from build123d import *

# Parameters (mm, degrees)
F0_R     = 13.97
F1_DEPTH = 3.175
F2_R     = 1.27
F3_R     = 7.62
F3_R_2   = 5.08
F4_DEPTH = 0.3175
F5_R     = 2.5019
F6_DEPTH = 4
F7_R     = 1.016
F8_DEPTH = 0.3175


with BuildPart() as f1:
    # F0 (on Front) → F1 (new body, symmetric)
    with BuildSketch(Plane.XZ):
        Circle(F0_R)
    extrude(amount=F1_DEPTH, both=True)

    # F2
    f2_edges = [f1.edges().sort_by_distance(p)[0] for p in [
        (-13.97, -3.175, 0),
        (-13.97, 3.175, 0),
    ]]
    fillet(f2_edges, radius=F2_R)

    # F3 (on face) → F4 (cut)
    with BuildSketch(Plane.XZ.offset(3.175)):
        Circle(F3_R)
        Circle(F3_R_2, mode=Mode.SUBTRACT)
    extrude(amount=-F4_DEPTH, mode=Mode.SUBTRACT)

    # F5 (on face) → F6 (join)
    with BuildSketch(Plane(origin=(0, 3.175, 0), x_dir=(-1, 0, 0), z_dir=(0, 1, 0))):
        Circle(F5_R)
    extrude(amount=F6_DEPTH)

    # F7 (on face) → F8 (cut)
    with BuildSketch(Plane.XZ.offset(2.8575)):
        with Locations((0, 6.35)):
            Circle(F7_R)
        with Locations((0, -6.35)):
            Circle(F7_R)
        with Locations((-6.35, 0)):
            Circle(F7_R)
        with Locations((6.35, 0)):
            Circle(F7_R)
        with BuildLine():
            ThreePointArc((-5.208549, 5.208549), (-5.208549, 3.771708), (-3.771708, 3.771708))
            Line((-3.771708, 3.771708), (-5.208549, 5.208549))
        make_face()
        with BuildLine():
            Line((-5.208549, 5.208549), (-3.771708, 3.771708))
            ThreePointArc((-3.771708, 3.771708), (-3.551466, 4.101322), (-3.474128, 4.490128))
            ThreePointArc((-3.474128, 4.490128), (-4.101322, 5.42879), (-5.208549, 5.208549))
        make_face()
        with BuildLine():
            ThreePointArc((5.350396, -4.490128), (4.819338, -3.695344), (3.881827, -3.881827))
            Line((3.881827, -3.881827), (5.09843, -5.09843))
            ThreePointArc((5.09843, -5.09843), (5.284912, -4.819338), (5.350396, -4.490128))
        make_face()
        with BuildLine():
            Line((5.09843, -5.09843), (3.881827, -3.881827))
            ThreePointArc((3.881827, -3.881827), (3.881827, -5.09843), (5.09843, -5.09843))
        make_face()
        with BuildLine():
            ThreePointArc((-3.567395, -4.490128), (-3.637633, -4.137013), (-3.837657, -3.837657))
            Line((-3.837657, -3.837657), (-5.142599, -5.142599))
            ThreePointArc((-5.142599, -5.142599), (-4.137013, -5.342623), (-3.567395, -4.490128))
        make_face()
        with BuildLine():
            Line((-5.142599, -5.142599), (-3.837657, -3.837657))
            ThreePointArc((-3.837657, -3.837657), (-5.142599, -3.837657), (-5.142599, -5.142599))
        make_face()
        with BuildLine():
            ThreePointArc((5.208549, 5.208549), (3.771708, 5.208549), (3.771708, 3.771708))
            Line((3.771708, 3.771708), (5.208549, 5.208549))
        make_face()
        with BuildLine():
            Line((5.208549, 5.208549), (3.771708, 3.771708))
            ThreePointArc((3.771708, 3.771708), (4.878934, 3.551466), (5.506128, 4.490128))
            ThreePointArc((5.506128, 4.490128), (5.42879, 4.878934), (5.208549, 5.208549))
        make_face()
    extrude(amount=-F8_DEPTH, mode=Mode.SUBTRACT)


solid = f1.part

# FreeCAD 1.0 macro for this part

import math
import FreeCAD as App
import Part
import Sketcher
Q = App.Units.Quantity


def edges_at(feature, points):
    """Names of the edges that pass closest to the given points."""
    edges = feature.Shape.Edges
    near = lambda p: min(range(len(edges)), key=lambda i: edges[i].distToShape(Part.Vertex(*p))[0])
    return sorted({f"Edge{near(p) + 1}" for p in points})

doc = App.newDocument("Part")
params = doc.addObject("Spreadsheet::Sheet", "Params")
for row, (alias, value) in enumerate([
    ("sketch1_diameter", "1.1 in"),
    ("pad1_length", "0.25 in"),
    ("fillet_radius", "0.05 in"),
    ("sketch2_diameter", "0.6 in"),
    ("sketch2_diameter2", "0.4 in"),
    ("pocket1_length", "0.0125 in"),
    ("sketch3_diameter", "0.197 in"),
    ("pad2_length", "4 mm"),
    ("sketch4_diameter", "0.08 in"),
    ("pocket2_length", "0.0125 in"),
], start=1):
    params.set(f"A{row}", alias)
    params.set(f"B{row}", "=" + value)
    params.setAlias(f"B{row}", alias)

body = doc.addObject("PartDesign::Body", "Body")

# Sketch on XZ plane
sketch1 = body.newObject("Sketcher::SketchObject", "Sketch")
sketch1.AttachmentSupport = (doc.getObject("XZ_Plane"), [""])
sketch1.MapMode = "FlatFace"
sketch1.addGeometry(Part.Circle(App.Vector(0, 0, 0), App.Vector(0, 0, 1), 14), False)
sketch1.addConstraint([
    Sketcher.Constraint("Coincident", 0, 3, -1, 1),
    Sketcher.Constraint("Diameter", 0, Q("1.1 in")),
])
sketch1.setExpression("Constraints[1]", "Params.sketch1_diameter")
pad1 = body.newObject("PartDesign::Pad", "Pad")
pad1.Profile = sketch1
pad1.setExpression("Length", "Params.pad1_length")
pad1.Midplane = True
doc.recompute()

fillet = body.newObject("PartDesign::Fillet", "Fillet")
fillet.Base = (pad1, edges_at(pad1, [(-13.97, -3.175, 0), (-13.97, 3.175, 0)]))
fillet.setExpression("Radius", "Params.fillet_radius")

# Sketch on XZ plane
sketch2 = body.newObject("Sketcher::SketchObject", "Sketch001")
sketch2.AttachmentSupport = (doc.getObject("XZ_Plane"), [""])
sketch2.MapMode = "FlatFace"
sketch2.AttachmentOffset = App.Placement(App.Vector(0, 0, 0.125 * 25.4), App.Rotation())
sketch2.addGeometry([
    Part.Circle(App.Vector(0, 0, 0), App.Vector(0, 0, 1), 8),
    Part.Circle(App.Vector(0, 0, 0), App.Vector(0, 0, 1), 5),
], False)
sketch2.addConstraint([
    Sketcher.Constraint("Coincident", 0, 3, -1, 1),
    Sketcher.Constraint("Coincident", 1, 3, -1, 1),
    Sketcher.Constraint("Diameter", 0, Q("0.6 in")),
    Sketcher.Constraint("Diameter", 1, Q("0.4 in")),
])
sketch2.setExpression("Constraints[2]", "Params.sketch2_diameter")
sketch2.setExpression("Constraints[3]", "Params.sketch2_diameter2")
pocket1 = body.newObject("PartDesign::Pocket", "Pocket")
pocket1.Profile = sketch2
pocket1.setExpression("Length", "Params.pocket1_length")

# Sketch on XZ plane
sketch3 = body.newObject("Sketcher::SketchObject", "Sketch002")
sketch3.AttachmentSupport = (doc.getObject("XZ_Plane"), [""])
sketch3.MapMode = "FlatFace"
sketch3.AttachmentOffset = App.Placement(App.Vector(0, 0, -0.125 * 25.4), App.Rotation())
sketch3.addGeometry(Part.Circle(App.Vector(0, 0, 0), App.Vector(0, 0, 1), 2.5), False)
sketch3.addConstraint([
    Sketcher.Constraint("Coincident", 0, 3, -1, 1),
    Sketcher.Constraint("Diameter", 0, Q("0.197 in")),
])
sketch3.setExpression("Constraints[1]", "Params.sketch3_diameter")
pad2 = body.newObject("PartDesign::Pad", "Pad001")
pad2.Profile = sketch3
pad2.setExpression("Length", "Params.pad2_length")
pad2.Reversed = True

# Sketch on XZ plane
sketch4 = body.newObject("Sketcher::SketchObject", "Sketch003")
sketch4.AttachmentSupport = (doc.getObject("XZ_Plane"), [""])
sketch4.MapMode = "FlatFace"
sketch4.AttachmentOffset = App.Placement(App.Vector(0, 0, 0.1125 * 25.4), App.Rotation())
sketch4.addGeometry([
    Part.Circle(App.Vector(0, 6.3, 0), App.Vector(0, 0, 1), 1),  # 0
    Part.Circle(App.Vector(0, -6.3, 0), App.Vector(0, 0, 1), 1),  # 1
    Part.Circle(App.Vector(-6.3, 0, 0), App.Vector(0, 0, 1), 1),  # 2
    Part.Circle(App.Vector(6.3, 0, 0), App.Vector(0, 0, 1), 1),  # 3
    Part.ArcOfCircle(Part.Circle(App.Vector(-4.5, 4.5, 0), App.Vector(0, 0, 1), 1), math.radians(135), math.radians(315)),  # 4
    Part.ArcOfCircle(Part.Circle(App.Vector(-4.5, 4.5, 0), App.Vector(0, 0, 1), 1), math.radians(-45), math.radians(0)),  # 5
    Part.ArcOfCircle(Part.Circle(App.Vector(-4.5, 4.5, 0), App.Vector(0, 0, 1), 1), math.radians(0), math.radians(135)),  # 6
    Part.ArcOfCircle(Part.Circle(App.Vector(4.5, -4.5, 0), App.Vector(0, 0, 1), 0.9), math.radians(0), math.radians(135)),  # 7
    Part.ArcOfCircle(Part.Circle(App.Vector(4.5, -4.5, 0), App.Vector(0, 0, 1), 0.9), math.radians(135), math.radians(315)),  # 8
    Part.ArcOfCircle(Part.Circle(App.Vector(4.5, -4.5, 0), App.Vector(0, 0, 1), 0.9), math.radians(-45), math.radians(0)),  # 9
    Part.ArcOfCircle(Part.Circle(App.Vector(-4.5, -4.5, 0), App.Vector(0, 0, 1), 0.9), math.radians(0), math.radians(45)),  # 10
    Part.ArcOfCircle(Part.Circle(App.Vector(-4.5, -4.5, 0), App.Vector(0, 0, 1), 0.9), math.radians(45), math.radians(225)),  # 11
    Part.ArcOfCircle(Part.Circle(App.Vector(-4.5, -4.5, 0), App.Vector(0, 0, 1), 0.9), math.radians(-135), math.radians(0)),  # 12
    Part.ArcOfCircle(Part.Circle(App.Vector(4.5, 4.5, 0), App.Vector(0, 0, 1), 1), math.radians(45), math.radians(225)),  # 13
    Part.ArcOfCircle(Part.Circle(App.Vector(4.5, 4.5, 0), App.Vector(0, 0, 1), 1), math.radians(-135), math.radians(0)),  # 14
    Part.ArcOfCircle(Part.Circle(App.Vector(4.5, 4.5, 0), App.Vector(0, 0, 1), 1), math.radians(0), math.radians(45)),  # 15
], False)
sketch4.addConstraint([
    Sketcher.Constraint("Coincident", 4, 2, 5, 1),
    Sketcher.Constraint("Tangent", 5, 2, 6, 1),
    Sketcher.Constraint("Tangent", 6, 2, 4, 1),
    Sketcher.Constraint("Tangent", 7, 2, 8, 1),
    Sketcher.Constraint("Coincident", 8, 2, 9, 1),
    Sketcher.Constraint("Coincident", 9, 2, 7, 1),
    Sketcher.Constraint("Coincident", 10, 2, 11, 1),
    Sketcher.Constraint("Tangent", 11, 2, 12, 1),
    Sketcher.Constraint("Coincident", 12, 2, 10, 1),
    Sketcher.Constraint("Tangent", 13, 2, 14, 1),
    Sketcher.Constraint("Tangent", 14, 2, 15, 1),
    Sketcher.Constraint("Tangent", 15, 2, 13, 1),
    Sketcher.Constraint("Coincident", 9, 3, 7, 3),
    Sketcher.Constraint("Equal", 0, 1),
    Sketcher.Constraint("Equal", 1, 2),
    Sketcher.Constraint("Equal", 2, 3),
    Sketcher.Constraint("Equal", 3, 4),
    Sketcher.Constraint("Equal", 4, 6),
    Sketcher.Constraint("Equal", 11, 12),
    Sketcher.Constraint("Equal", 6, 13),
    Sketcher.Constraint("Symmetric", 0, 3, 1, 3, -1, 1),
    Sketcher.Constraint("Symmetric", 2, 3, 3, 3, -1, 1),
    Sketcher.Constraint("Symmetric", 4, 3, 7, 3, -1, 1),
    Sketcher.Constraint("Symmetric", 11, 3, 13, 3, -1, 1),
    Sketcher.Constraint("Symmetric", 9, 3, 10, 3, -2),
    Sketcher.Constraint("Symmetric", 4, 2, 13, 2, -2),
    Sketcher.Constraint("PointOnObject", 0, 3, -2),
    Sketcher.Constraint("PointOnObject", 2, 3, -1),
    Sketcher.Constraint("Horizontal", 15, 3, 5, 2),
    Sketcher.Constraint("Horizontal", 12, 3, 9, 2),
    Sketcher.Constraint("Horizontal", 9, 2, 12, 2),
    Sketcher.Constraint("Horizontal", 5, 2, 14, 2),
    Sketcher.Constraint("Horizontal", 6, 2, 15, 2),
    Sketcher.Constraint("Diameter", 0, Q("0.08 in")),
    Sketcher.Constraint("DistanceY", 1, 3, 0, 3, Q("0.5 in")),
    Sketcher.Constraint("DistanceX", 2, 3, 3, 3, Q("0.5 in")),
    Sketcher.Constraint("Radius", 8, 0.860268),
    Sketcher.Constraint("Radius", 10, 0.922724),
    Sketcher.Constraint("DistanceX", 11, 2, -1, 1, 5.142599),
    Sketcher.Constraint("DistanceY", 11, 2, -1, 1, 5.142599),
    Sketcher.Constraint("DistanceY", 9, 3, 7, 2, 0.608299),
    Sketcher.Constraint("DistanceX", 8, 3, 8, 2, 0.608301),
    Sketcher.Constraint("DistanceX", 4, 3, -1, 1, 4.490128),
    Sketcher.Constraint("DistanceX", 6, 2, -1, 1, 5.208549),
    Sketcher.Constraint("DistanceX", 6, 3, 4, 2, 0.71842),
    Sketcher.Constraint("DistanceX", 10, 3, 10, 2, 0.652462),
])
sketch4.setExpression("Constraints[33]", "Params.sketch4_diameter")
pocket2 = body.newObject("PartDesign::Pocket", "Pocket001")
pocket2.Profile = sketch4
pocket2.setExpression("Length", "Params.pocket2_length")

doc.recompute()
